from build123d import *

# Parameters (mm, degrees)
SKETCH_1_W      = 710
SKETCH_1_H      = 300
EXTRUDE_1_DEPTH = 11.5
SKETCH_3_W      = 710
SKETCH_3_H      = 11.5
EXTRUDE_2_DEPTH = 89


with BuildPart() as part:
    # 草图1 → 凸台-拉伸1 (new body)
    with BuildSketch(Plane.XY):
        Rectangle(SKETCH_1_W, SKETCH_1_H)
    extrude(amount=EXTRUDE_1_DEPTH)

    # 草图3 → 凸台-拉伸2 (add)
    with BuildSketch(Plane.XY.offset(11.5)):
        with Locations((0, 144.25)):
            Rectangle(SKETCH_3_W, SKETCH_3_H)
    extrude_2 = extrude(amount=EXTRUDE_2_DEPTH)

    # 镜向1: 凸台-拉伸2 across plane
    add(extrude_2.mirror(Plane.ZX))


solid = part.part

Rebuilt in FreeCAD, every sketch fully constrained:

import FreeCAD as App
import Part
import Sketcher

doc = App.newDocument("Part")
params = doc.addObject("Spreadsheet::Sheet", "Params")
for row, (alias, value) in enumerate([
    ("sketch1_width", "710 mm"),
    ("sketch1_height", "300 mm"),
    ("pad1_length", "11.5 mm"),
    ("sketch2_width", "710 mm"),
    ("sketch2_height", "11.5 mm"),
    ("pad2_length", "89 mm"),
], start=1):
    params.set(f"A{row}", alias)
    params.set(f"B{row}", "=" + value)
    params.setAlias(f"B{row}", alias)

body = doc.addObject("PartDesign::Body", "Body")

sketch1 = body.newObject("Sketcher::SketchObject", "Sketch")
sketch1.AttachmentSupport = (doc.getObject("XY_Plane"), [""])
sketch1.MapMode = "FlatFace"
sketch1.addGeometry([
    Part.LineSegment(App.Vector(-355, 150, 0), App.Vector(-355, -150, 0)),
    Part.LineSegment(App.Vector(-355, -150, 0), App.Vector(355, -150, 0)),
    Part.LineSegment(App.Vector(355, -150, 0), App.Vector(355, 150, 0)),
    Part.LineSegment(App.Vector(355, 150, 0), App.Vector(-355, 150, 0)),
], False)
sketch1.addConstraint([
    Sketcher.Constraint("Coincident", 0, 2, 1, 1),
    Sketcher.Constraint("Coincident", 1, 2, 2, 1),
    Sketcher.Constraint("Coincident", 2, 2, 3, 1),
    Sketcher.Constraint("Coincident", 3, 2, 0, 1),
    Sketcher.Constraint("Vertical", 0),
    Sketcher.Constraint("Horizontal", 1),
    Sketcher.Constraint("Vertical", 2),
    Sketcher.Constraint("Horizontal", 3),
    Sketcher.Constraint("Symmetric", 0, 2, 2, 2, -1, 1),
    Sketcher.Constraint("DistanceX", 1, 1, 1, 2, 710.0),
    Sketcher.Constraint("DistanceY", 0, 2, 0, 1, 300.0),
])
sketch1.setExpression("Constraints[9]", "Params.sketch1_width")
sketch1.setExpression("Constraints[10]", "Params.sketch1_height")
pad1 = body.newObject("PartDesign::Pad", "Pad")
pad1.Profile = sketch1
pad1.setExpression("Length", "Params.pad1_length")

sketch2 = body.newObject("Sketcher::SketchObject", "Sketch001")
sketch2.AttachmentSupport = (doc.getObject("XY_Plane"), [""])
sketch2.MapMode = "FlatFace"
sketch2.AttachmentOffset = App.Placement(App.Vector(0, 0, 11.5), App.Rotation())
sketch2.addGeometry([
    Part.LineSegment(App.Vector(-355, 150, 0), App.Vector(-355, 138, 0)),
    Part.LineSegment(App.Vector(-355, 138, 0), App.Vector(355, 138, 0)),
    Part.LineSegment(App.Vector(355, 138, 0), App.Vector(355, 150, 0)),
    Part.LineSegment(App.Vector(355, 150, 0), App.Vector(-355, 150, 0)),
], False)
sketch2.addConstraint([
    Sketcher.Constraint("Coincident", 0, 2, 1, 1),
    Sketcher.Constraint("Coincident", 1, 2, 2, 1),
    Sketcher.Constraint("Coincident", 2, 2, 3, 1),
    Sketcher.Constraint("Coincident", 3, 2, 0, 1),
    Sketcher.Constraint("Vertical", 0),
    Sketcher.Constraint("Horizontal", 1),
    Sketcher.Constraint("Vertical", 2),
    Sketcher.Constraint("Horizontal", 3),
    Sketcher.Constraint("DistanceX", 1, 1, 1, 2, 710.0),
    Sketcher.Constraint("DistanceY", 0, 2, 0, 1, 11.5),
    Sketcher.Constraint("DistanceX", 0, 2, -1, 1, 355.0),
    Sketcher.Constraint("DistanceY", -1, 1, 2, 2, 150.0),
])
sketch2.setExpression("Constraints[8]", "Params.sketch2_width")
sketch2.setExpression("Constraints[9]", "Params.sketch2_height")
pad2 = body.newObject("PartDesign::Pad", "Pad001")
pad2.Profile = sketch2
pad2.setExpression("Length", "Params.pad2_length")
doc.recompute()

mirrored = body.newObject("PartDesign::Mirrored", "Mirrored")
mirrored.Originals = [pad2]
mirrored.MirrorPlane = (doc.getObject("XZ_Plane"), [""])
body.Tip = mirrored

doc.recompute()
